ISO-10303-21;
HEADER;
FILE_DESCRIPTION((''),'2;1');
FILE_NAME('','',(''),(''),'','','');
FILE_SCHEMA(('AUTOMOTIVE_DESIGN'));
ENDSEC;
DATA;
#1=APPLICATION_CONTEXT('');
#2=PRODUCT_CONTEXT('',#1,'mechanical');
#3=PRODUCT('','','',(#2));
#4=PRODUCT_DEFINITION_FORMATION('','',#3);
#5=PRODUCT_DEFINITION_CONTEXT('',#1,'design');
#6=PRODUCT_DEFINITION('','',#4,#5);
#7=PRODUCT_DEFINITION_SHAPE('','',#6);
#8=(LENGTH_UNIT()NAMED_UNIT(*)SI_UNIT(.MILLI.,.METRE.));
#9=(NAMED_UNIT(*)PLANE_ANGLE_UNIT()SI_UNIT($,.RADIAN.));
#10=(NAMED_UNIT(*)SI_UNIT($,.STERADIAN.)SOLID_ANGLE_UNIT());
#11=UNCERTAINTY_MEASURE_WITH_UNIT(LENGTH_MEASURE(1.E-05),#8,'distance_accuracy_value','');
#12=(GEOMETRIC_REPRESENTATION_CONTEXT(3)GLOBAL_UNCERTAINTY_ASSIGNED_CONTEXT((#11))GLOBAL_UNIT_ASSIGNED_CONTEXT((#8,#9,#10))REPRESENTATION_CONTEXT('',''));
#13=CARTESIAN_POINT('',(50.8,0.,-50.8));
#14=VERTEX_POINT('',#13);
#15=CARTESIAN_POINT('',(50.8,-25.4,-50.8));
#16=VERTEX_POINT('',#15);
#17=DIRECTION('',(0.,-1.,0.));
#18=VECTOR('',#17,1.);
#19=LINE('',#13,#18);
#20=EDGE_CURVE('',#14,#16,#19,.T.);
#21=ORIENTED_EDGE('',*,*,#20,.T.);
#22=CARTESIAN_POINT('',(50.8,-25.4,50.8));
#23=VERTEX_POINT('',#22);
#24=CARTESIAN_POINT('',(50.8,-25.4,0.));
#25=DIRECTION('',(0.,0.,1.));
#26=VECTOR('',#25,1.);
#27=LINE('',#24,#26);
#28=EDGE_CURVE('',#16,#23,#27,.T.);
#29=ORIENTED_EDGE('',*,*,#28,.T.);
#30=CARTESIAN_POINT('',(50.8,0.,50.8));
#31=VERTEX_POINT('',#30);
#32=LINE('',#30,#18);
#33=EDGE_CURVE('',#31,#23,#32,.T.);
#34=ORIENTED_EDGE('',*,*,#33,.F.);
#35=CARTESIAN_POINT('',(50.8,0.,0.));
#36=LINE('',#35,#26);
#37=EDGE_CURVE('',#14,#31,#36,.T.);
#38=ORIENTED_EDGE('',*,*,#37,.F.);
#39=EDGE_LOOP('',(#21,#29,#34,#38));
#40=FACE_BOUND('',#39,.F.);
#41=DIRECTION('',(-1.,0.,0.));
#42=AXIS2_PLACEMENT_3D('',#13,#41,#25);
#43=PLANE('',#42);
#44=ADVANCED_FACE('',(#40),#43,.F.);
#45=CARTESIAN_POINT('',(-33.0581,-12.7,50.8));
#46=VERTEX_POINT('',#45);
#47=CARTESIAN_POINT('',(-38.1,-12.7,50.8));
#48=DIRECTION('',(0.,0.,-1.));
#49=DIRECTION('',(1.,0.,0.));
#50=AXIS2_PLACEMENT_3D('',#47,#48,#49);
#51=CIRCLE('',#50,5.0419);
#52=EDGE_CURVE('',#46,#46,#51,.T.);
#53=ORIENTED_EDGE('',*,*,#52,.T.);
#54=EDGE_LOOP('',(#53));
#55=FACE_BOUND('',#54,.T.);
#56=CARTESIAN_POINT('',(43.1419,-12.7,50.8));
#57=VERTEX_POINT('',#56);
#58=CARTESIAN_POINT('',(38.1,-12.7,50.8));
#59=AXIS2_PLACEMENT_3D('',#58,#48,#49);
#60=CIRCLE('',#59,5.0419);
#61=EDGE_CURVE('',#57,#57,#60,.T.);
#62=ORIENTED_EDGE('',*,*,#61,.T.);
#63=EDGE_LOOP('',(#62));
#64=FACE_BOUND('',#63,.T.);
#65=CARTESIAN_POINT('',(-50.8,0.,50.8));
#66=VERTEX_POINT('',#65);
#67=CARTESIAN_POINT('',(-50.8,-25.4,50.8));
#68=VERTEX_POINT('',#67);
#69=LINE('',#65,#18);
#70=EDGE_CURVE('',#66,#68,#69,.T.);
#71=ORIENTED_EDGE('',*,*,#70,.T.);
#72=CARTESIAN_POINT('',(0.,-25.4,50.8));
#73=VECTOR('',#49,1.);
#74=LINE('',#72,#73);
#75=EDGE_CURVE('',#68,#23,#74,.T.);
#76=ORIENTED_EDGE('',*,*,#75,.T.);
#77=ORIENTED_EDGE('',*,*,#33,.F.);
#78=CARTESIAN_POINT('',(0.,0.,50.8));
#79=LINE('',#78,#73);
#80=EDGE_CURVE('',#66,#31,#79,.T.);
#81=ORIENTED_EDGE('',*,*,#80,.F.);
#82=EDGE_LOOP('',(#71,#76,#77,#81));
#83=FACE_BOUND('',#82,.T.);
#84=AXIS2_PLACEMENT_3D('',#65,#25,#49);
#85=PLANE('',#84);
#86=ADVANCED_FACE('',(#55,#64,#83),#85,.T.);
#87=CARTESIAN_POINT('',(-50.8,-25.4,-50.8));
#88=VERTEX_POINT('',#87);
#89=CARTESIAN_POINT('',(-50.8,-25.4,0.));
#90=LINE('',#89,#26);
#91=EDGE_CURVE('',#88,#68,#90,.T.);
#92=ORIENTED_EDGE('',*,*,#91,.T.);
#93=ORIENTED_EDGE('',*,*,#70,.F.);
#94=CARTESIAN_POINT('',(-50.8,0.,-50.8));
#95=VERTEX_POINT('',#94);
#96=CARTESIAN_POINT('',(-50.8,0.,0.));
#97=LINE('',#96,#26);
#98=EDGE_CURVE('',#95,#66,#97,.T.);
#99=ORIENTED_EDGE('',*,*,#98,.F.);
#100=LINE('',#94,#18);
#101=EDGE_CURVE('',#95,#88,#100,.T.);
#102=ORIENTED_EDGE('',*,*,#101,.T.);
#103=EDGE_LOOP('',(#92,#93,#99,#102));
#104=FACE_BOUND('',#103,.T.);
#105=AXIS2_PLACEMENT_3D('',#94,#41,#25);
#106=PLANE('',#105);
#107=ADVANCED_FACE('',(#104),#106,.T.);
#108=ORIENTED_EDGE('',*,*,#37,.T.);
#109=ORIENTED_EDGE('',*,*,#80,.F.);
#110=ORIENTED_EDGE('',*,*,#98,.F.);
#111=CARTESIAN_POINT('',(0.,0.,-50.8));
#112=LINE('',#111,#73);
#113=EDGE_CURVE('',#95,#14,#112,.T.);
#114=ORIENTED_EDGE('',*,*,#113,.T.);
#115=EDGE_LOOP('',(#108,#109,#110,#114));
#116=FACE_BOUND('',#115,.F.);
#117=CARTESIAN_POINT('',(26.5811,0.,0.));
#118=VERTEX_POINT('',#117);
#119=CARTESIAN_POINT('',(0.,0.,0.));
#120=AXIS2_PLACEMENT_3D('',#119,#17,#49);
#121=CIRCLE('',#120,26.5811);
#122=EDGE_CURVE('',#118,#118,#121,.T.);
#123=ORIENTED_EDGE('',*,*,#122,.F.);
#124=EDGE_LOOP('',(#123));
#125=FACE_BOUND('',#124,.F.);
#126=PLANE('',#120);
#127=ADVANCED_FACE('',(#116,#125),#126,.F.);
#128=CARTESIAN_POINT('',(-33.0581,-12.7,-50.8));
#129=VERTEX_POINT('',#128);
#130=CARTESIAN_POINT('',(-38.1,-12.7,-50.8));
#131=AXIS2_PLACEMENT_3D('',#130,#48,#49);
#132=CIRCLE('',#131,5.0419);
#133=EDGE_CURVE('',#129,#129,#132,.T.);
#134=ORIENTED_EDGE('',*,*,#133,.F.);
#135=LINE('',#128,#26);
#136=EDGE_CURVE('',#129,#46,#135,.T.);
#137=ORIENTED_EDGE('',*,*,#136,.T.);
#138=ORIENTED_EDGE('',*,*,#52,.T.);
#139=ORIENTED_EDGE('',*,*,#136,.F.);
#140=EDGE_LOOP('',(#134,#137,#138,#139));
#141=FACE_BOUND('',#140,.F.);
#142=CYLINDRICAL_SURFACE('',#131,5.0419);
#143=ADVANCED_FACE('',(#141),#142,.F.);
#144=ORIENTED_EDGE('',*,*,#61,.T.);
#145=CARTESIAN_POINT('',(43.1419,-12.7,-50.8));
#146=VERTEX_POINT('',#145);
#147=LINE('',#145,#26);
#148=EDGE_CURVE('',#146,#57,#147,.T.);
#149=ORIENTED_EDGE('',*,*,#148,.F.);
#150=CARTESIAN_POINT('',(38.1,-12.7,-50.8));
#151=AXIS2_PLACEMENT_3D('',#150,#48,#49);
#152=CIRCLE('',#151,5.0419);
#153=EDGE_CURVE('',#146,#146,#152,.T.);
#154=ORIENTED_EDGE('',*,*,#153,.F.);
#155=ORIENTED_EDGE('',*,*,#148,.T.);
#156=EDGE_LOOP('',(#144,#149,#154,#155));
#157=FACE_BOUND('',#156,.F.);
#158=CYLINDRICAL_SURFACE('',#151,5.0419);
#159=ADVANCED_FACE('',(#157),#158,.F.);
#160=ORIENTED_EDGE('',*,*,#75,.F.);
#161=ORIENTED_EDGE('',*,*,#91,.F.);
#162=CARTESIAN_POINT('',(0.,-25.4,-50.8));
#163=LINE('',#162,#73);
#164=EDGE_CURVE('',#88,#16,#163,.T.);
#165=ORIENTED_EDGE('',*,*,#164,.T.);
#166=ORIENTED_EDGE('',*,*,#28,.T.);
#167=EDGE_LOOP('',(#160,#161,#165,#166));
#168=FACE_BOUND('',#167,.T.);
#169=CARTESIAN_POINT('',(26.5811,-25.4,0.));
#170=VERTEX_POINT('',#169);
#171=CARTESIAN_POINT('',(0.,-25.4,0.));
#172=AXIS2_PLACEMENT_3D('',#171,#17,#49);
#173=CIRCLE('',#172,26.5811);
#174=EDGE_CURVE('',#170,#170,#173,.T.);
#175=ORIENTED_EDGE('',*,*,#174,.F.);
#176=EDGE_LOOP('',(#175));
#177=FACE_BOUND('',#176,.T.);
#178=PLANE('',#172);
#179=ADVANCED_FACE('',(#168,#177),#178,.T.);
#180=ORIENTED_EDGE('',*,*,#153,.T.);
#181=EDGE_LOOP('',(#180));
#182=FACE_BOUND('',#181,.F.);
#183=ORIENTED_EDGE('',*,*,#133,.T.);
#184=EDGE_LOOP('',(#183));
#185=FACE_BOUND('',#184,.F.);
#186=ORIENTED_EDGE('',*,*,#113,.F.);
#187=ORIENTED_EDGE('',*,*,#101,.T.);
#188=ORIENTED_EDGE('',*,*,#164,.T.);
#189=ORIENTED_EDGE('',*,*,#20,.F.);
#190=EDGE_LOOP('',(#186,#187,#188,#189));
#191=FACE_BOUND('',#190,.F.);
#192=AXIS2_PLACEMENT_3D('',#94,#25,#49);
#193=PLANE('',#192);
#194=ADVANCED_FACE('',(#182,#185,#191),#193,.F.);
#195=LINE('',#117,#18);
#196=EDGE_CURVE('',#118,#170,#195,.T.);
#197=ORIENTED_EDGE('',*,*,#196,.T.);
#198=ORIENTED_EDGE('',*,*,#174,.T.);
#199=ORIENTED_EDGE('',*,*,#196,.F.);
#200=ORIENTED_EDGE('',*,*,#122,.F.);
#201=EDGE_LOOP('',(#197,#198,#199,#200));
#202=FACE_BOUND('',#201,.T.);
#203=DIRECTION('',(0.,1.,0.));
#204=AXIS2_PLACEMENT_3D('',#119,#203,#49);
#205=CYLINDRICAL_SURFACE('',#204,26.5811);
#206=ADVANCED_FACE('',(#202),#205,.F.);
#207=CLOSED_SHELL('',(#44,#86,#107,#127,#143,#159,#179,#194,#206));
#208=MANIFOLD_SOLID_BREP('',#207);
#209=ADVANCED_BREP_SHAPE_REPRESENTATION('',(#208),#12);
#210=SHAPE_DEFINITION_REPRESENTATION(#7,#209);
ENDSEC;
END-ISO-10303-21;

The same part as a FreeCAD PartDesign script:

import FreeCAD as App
import Part
import Sketcher
from FreeCAD import Vector
Q = App.Units.Quantity

doc = App.newDocument("Part")
body = doc.addObject("PartDesign::Body", "Body")

# Sketch on XZ plane
sketch1 = body.newObject("Sketcher::SketchObject", "Sketch")
sketch1.AttachmentSupport = (doc.getObject("XZ_Plane"), [""])
sketch1.MapMode = "FlatFace"
sketch1.addGeometry([
    Part.LineSegment(Vector(-50.8, 50.8, 0), Vector(-50.8, -50.8, 0)),  # 0
    Part.LineSegment(Vector(-50.8, -50.8, 0), Vector(50.8, -50.8, 0)),  # 1
    Part.LineSegment(Vector(50.8, -50.8, 0), Vector(50.8, 50.8, 0)),  # 2
    Part.LineSegment(Vector(50.8, 50.8, 0), Vector(-50.8, 50.8, 0)),  # 3
    Part.Circle(Vector(0, 0, 0), Vector(0, 0, 1), 26.5811),  # 4
], False)
sketch1.addConstraint([
    Sketcher.Constraint("Coincident", 0, 2, 1, 1),
    Sketcher.Constraint("Coincident", 1, 2, 2, 1),
    Sketcher.Constraint("Coincident", 2, 2, 3, 1),
    Sketcher.Constraint("Coincident", 3, 2, 0, 1),
    Sketcher.Constraint("Vertical", 0),
    Sketcher.Constraint("Horizontal", 1),
    Sketcher.Constraint("Vertical", 2),
    Sketcher.Constraint("Horizontal", 3),
    Sketcher.Constraint("Coincident", 4, 3, -1, 1),
    Sketcher.Constraint("Symmetric", 0, 2, 2, 2, -1, 1),
    Sketcher.Constraint("Equal", 3, 0),
    Sketcher.Constraint("DistanceX", 1, 1, 1, 2, Q("4 in")),
    Sketcher.Constraint("Diameter", 4, Q("2.093 in")),
])
pad1 = body.newObject("PartDesign::Pad", "Pad")
pad1.Profile = sketch1
pad1.Length = Q("1 in")

# Sketch on XY plane
sketch2 = body.newObject("Sketcher::SketchObject", "Sketch001")
sketch2.AttachmentSupport = (doc.getObject("XY_Plane"), [""])
sketch2.MapMode = "FlatFace"
sketch2.AttachmentOffset = App.Placement(Vector(0, 0, -2 * 25.4), App.Rotation())
sketch2.addGeometry([
    Part.Circle(Vector(-38.1, -12.7, 0), Vector(0, 0, 1), 5.0419),
    Part.Circle(Vector(38.1, -12.7, 0), Vector(0, 0, 1), 5.0419),
], False)
sketch2.addConstraint([
    Sketcher.Constraint("Equal", 0, 1),
    Sketcher.Constraint("Symmetric", 0, 3, 1, 3, -2),
    Sketcher.Constraint("Diameter", 0, Q("0.397 in")),
    Sketcher.Constraint("DistanceX", 0, 3, 1, 3, Q("3 in")),
    Sketcher.Constraint("DistanceY", 0, 3, -1, 1, Q("0.5 in")),
])
pocket1 = body.newObject("PartDesign::Pocket", "Pocket")
pocket1.Profile = sketch2
pocket1.Type = "ThroughAll"
pocket1.Reversed = True

doc.recompute()
